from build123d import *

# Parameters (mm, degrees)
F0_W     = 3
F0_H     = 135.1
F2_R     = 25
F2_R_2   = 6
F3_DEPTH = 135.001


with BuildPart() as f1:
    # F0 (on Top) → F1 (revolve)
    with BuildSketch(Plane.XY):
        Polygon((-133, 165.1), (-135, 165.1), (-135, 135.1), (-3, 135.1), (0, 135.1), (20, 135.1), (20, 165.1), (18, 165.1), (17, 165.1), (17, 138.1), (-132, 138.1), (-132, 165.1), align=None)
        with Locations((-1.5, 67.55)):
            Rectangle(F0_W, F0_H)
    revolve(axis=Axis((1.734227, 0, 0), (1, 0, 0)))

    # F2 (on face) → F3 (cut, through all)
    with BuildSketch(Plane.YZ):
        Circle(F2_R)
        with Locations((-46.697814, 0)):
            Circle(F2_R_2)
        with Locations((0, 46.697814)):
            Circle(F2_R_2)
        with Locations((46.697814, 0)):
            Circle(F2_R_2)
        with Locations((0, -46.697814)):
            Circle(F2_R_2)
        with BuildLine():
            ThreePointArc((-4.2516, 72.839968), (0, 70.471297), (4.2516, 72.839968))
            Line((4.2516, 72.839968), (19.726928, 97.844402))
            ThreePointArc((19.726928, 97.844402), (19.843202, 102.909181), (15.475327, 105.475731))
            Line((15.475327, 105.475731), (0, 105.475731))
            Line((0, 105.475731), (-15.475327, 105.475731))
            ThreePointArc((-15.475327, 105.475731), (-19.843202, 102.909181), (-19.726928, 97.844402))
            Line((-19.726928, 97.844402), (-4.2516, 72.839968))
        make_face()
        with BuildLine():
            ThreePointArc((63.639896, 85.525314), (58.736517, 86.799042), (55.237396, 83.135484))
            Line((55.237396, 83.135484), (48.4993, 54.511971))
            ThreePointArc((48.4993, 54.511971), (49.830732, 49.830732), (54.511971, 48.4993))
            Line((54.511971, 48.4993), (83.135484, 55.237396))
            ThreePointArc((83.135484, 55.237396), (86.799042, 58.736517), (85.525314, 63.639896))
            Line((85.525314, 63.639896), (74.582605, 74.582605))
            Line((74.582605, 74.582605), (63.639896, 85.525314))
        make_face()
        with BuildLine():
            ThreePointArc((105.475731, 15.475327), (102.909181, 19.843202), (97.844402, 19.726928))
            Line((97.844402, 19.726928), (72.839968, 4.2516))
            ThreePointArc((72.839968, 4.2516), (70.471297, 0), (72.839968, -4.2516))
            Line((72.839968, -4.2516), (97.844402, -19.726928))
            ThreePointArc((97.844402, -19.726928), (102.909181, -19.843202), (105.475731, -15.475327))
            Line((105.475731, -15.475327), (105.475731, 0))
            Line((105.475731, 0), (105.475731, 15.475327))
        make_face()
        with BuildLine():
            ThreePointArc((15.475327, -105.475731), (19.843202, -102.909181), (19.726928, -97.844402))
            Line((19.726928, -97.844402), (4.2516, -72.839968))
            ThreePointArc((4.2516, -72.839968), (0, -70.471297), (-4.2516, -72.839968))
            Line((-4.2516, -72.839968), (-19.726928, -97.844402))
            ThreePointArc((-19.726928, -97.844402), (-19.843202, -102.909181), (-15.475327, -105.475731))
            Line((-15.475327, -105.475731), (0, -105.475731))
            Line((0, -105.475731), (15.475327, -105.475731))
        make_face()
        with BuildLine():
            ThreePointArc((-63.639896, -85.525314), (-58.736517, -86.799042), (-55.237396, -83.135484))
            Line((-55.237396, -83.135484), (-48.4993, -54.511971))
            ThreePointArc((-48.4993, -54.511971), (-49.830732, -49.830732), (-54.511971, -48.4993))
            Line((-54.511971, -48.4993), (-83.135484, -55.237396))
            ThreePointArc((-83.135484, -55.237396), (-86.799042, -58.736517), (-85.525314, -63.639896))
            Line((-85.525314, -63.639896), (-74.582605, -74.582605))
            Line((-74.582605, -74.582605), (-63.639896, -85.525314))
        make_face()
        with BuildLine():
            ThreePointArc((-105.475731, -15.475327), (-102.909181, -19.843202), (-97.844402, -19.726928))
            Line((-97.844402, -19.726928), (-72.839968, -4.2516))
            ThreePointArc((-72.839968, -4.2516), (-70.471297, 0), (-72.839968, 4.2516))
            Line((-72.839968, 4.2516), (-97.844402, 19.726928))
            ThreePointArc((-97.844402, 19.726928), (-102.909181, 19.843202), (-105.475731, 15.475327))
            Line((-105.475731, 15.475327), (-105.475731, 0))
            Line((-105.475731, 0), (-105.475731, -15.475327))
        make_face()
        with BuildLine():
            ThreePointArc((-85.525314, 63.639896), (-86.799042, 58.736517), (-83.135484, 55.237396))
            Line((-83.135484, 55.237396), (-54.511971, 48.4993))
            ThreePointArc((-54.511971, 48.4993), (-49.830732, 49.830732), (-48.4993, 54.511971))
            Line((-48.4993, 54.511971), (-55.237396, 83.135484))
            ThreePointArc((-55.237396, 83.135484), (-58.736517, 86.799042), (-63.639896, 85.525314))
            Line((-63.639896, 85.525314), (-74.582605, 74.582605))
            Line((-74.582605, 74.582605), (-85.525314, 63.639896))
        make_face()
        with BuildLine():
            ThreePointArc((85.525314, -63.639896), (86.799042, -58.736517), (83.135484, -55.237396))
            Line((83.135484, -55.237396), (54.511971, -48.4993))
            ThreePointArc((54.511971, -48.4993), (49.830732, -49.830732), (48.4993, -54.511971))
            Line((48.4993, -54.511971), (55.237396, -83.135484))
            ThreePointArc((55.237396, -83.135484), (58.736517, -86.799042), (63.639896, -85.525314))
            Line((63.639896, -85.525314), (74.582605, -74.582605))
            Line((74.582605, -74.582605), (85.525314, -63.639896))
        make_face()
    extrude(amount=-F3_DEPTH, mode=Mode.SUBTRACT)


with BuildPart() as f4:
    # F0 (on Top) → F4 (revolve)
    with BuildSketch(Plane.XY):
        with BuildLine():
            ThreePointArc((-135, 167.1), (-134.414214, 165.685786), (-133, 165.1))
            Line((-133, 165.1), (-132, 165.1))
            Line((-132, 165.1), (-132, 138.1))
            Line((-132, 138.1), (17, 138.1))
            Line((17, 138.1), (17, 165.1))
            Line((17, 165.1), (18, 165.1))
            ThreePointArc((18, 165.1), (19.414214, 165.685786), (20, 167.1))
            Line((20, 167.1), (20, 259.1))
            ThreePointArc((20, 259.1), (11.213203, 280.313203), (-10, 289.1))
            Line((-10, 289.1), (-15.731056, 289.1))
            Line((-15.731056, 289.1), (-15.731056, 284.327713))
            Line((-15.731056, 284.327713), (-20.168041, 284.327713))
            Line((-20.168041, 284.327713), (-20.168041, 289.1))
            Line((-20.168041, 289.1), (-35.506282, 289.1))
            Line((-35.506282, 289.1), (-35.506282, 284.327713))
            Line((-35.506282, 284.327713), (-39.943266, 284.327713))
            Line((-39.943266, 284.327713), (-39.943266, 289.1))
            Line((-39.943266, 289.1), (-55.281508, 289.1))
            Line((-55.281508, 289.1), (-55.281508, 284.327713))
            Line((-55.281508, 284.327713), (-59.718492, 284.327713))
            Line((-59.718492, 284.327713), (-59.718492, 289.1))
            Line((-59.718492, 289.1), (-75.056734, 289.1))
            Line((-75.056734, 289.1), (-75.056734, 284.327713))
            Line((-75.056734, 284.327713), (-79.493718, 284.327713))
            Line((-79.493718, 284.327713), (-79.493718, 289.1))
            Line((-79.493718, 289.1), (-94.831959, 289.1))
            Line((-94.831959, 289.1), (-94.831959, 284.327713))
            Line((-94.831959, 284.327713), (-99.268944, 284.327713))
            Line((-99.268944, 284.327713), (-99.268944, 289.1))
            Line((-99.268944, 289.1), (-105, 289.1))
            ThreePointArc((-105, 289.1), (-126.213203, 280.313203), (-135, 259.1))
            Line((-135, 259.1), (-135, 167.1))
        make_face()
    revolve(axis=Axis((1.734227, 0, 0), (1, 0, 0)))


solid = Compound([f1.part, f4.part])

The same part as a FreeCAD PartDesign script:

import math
import FreeCAD as App
import Part
import Sketcher
from FreeCAD import Vector
Q = App.Units.Quantity

doc = App.newDocument("Part")
body = doc.addObject("PartDesign::Body", "Body")

sketch1 = doc.addObject("Sketcher::SketchObject", "Sketch")
body.addObject(sketch1)
sketch1.AttachmentSupport = (doc.XY_Plane, [""])
sketch1.MapMode = "FlatFace"
sketch1.addGeometry(Part.LineSegment(Vector(-135, 165.1, 0), Vector(-135, 135.1, 0)), False)
sketch1.addGeometry(Part.LineSegment(Vector(-135, 135.1, 0), Vector(-3, 135.1, 0)), False)
sketch1.addGeometry(Part.LineSegment(Vector(-3, 135.1, 0), Vector(-3, 0, 0)), False)
sketch1.addGeometry(Part.LineSegment(Vector(-3, 0, 0), Vector(0, 0, 0)), False)
sketch1.addGeometry(Part.LineSegment(Vector(0, 0, 0), Vector(0, 135.1, 0)), False)
sketch1.addGeometry(Part.LineSegment(Vector(0, 135.1, 0), Vector(20, 135.1, 0)), False)
sketch1.addGeometry(Part.LineSegment(Vector(20, 135.1, 0), Vector(20, 165.1, 0)), False)
sketch1.addGeometry(Part.LineSegment(Vector(20, 165.1, 0), Vector(17, 165.1, 0)), False)
sketch1.addGeometry(Part.LineSegment(Vector(17, 165.1, 0), Vector(17, 138.1, 0)), False)
sketch1.addGeometry(Part.LineSegment(Vector(17, 138.1, 0), Vector(-132, 138.1, 0)), False)
sketch1.addGeometry(Part.LineSegment(Vector(-132, 138.1, 0), Vector(-132, 165.1, 0)), False)
sketch1.addGeometry(Part.LineSegment(Vector(-132, 165.1, 0), Vector(-135, 165.1, 0)), False)
sketch1.addConstraint(Sketcher.Constraint("Coincident", 0, 2, 1, 1))
sketch1.addConstraint(Sketcher.Constraint("Coincident", 1, 2, 2, 1))
sketch1.addConstraint(Sketcher.Constraint("Coincident", 2, 2, 3, 1))
sketch1.addConstraint(Sketcher.Constraint("Coincident", 3, 2, 4, 1))
sketch1.addConstraint(Sketcher.Constraint("Coincident", 4, 2, 5, 1))
sketch1.addConstraint(Sketcher.Constraint("Coincident", 5, 2, 6, 1))
sketch1.addConstraint(Sketcher.Constraint("Coincident", 6, 2, 7, 1))
sketch1.addConstraint(Sketcher.Constraint("Coincident", 7, 2, 8, 1))
sketch1.addConstraint(Sketcher.Constraint("Coincident", 8, 2, 9, 1))
sketch1.addConstraint(Sketcher.Constraint("Coincident", 9, 2, 10, 1))
sketch1.addConstraint(Sketcher.Constraint("Coincident", 10, 2, 11, 1))
sketch1.addConstraint(Sketcher.Constraint("Coincident", 11, 2, 0, 1))
sketch1.addConstraint(Sketcher.Constraint("Vertical", 0))
sketch1.addConstraint(Sketcher.Constraint("Horizontal", 1))
sketch1.addConstraint(Sketcher.Constraint("Vertical", 2))
sketch1.addConstraint(Sketcher.Constraint("Horizontal", 3))
sketch1.addConstraint(Sketcher.Constraint("Vertical", 4))
sketch1.addConstraint(Sketcher.Constraint("Horizontal", 5))
sketch1.addConstraint(Sketcher.Constraint("Vertical", 6))
sketch1.addConstraint(Sketcher.Constraint("Horizontal", 7))
sketch1.addConstraint(Sketcher.Constraint("Vertical", 8))
sketch1.addConstraint(Sketcher.Constraint("Horizontal", 9))
sketch1.addConstraint(Sketcher.Constraint("Vertical", 10))
sketch1.addConstraint(Sketcher.Constraint("Horizontal", 11))
sketch1.addConstraint(Sketcher.Constraint("Coincident", 3, 2, -1, 1))
sketch1.addConstraint(Sketcher.Constraint("Horizontal", 1, 2, 4, 2))
sketch1.addConstraint(Sketcher.Constraint("Horizontal", 7, 2, 10, 2))
sketch1.addConstraint(Sketcher.Constraint("Equal", 3, 7))
sketch1.addConstraint(Sketcher.Constraint("Equal", 7, 11))
sketch1.addConstraint(Sketcher.Constraint("DistanceX", 1, 1, 1, 2, Q("132 mm")))
sketch1.addConstraint(Sketcher.Constraint("DistanceX", 3, 1, 3, 2, Q("3 mm")))
sketch1.addConstraint(Sketcher.Constraint("DistanceX", 5, 1, 5, 2, Q("20 mm")))
sketch1.addConstraint(Sketcher.Constraint("DistanceY", 0, 2, 0, 1, Q("30 mm")))
sketch1.addConstraint(Sketcher.Constraint("DistanceY", 8, 2, 8, 1, Q("27 mm")))
sketch1.addConstraint(Sketcher.Constraint("DistanceY", 2, 2, 2, 1, Q("135.1 mm")))
revolution = doc.addObject("PartDesign::Revolution", "Revolution")
body.addObject(revolution)
revolution.Profile = sketch1
revolution.ReferenceAxis = (sketch1, ["H_Axis"])
revolution.Angle = 360

sketch2 = doc.addObject("Sketcher::SketchObject", "Sketch001")
body.addObject(sketch2)
sketch2.AttachmentSupport = (doc.YZ_Plane, [""])
sketch2.MapMode = "FlatFace"
sketch2.addGeometry(Part.Circle(Vector(0, 0, 0), Vector(0, 0, 1), 25), False)
sketch2.addGeometry(Part.Circle(Vector(-46.7, 0, 0), Vector(0, 0, 1), 6), False)
sketch2.addGeometry(Part.Circle(Vector(0, 46.7, 0), Vector(0, 0, 1), 6), False)
sketch2.addGeometry(Part.Circle(Vector(46.7, 0, 0), Vector(0, 0, 1), 6), False)
sketch2.addGeometry(Part.Circle(Vector(0, -46.7, 0), Vector(0, 0, 1), 6), False)
sketch2.addGeometry(Part.ArcOfCircle(Part.Circle(Vector(0, 75.5, 0), Vector(0, 0, 1), 5), math.radians(-148), math.radians(-32)), False)
sketch2.addGeometry(Part.LineSegment(Vector(4.3, 72.8, 0), Vector(19.7, 97.8, 0)), False)
sketch2.addGeometry(Part.ArcOfCircle(Part.Circle(Vector(15.5, 100.5, 0), Vector(0, 0, 1), 5), math.radians(-32), math.radians(90)), False)
sketch2.addGeometry(Part.LineSegment(Vector(15.5, 105.5, 0), Vector(-15.5, 105.5, 0)), False)
sketch2.addGeometry(Part.ArcOfCircle(Part.Circle(Vector(-15.5, 100.5, 0), Vector(0, 0, 1), 5), math.radians(90), math.radians(212)), False)
sketch2.addGeometry(Part.LineSegment(Vector(-19.7, 97.8, 0), Vector(-4.3, 72.8, 0)), False)
sketch2.addGeometry(Part.ArcOfCircle(Part.Circle(Vector(60.1, 82, 0), Vector(0, 0, 1), 5), math.radians(45), math.radians(167)), False)
sketch2.addGeometry(Part.LineSegment(Vector(55.2, 83.1, 0), Vector(48.5, 54.5, 0)), False)
sketch2.addGeometry(Part.ArcOfCircle(Part.Circle(Vector(53.4, 53.4, 0), Vector(0, 0, 1), 5), math.radians(167), math.radians(283)), False)
sketch2.addGeometry(Part.LineSegment(Vector(54.5, 48.5, 0), Vector(83.1, 55.2, 0)), False)
sketch2.addGeometry(Part.ArcOfCircle(Part.Circle(Vector(82, 60.1, 0), Vector(0, 0, 1), 5), math.radians(-77), math.radians(45)), False)
sketch2.addGeometry(Part.LineSegment(Vector(85.5, 63.6, 0), Vector(63.6, 85.5, 0)), False)
sketch2.addGeometry(Part.ArcOfCircle(Part.Circle(Vector(100.5, 15.5, 0), Vector(0, 0, 1), 5), math.radians(0), math.radians(122)), False)
sketch2.addGeometry(Part.LineSegment(Vector(97.8, 19.7, 0), Vector(72.8, 4.3, 0)), False)
sketch2.addGeometry(Part.ArcOfCircle(Part.Circle(Vector(75.5, 0, 0), Vector(0, 0, 1), 5), math.radians(122), math.radians(238)), False)
sketch2.addGeometry(Part.LineSegment(Vector(72.8, -4.3, 0), Vector(97.8, -19.7, 0)), False)
sketch2.addGeometry(Part.ArcOfCircle(Part.Circle(Vector(100.5, -15.5, 0), Vector(0, 0, 1), 5), math.radians(-122), math.radians(0)), False)
sketch2.addGeometry(Part.LineSegment(Vector(105.5, -15.5, 0), Vector(105.5, 15.5, 0)), False)
sketch2.addGeometry(Part.ArcOfCircle(Part.Circle(Vector(15.5, -100.5, 0), Vector(0, 0, 1), 5), math.radians(-90), math.radians(32)), False)
sketch2.addGeometry(Part.LineSegment(Vector(19.7, -97.8, 0), Vector(4.3, -72.8, 0)), False)
sketch2.addGeometry(Part.ArcOfCircle(Part.Circle(Vector(0, -75.5, 0), Vector(0, 0, 1), 5), math.radians(32), math.radians(148)), False)
sketch2.addGeometry(Part.LineSegment(Vector(-4.3, -72.8, 0), Vector(-19.7, -97.8, 0)), False)
sketch2.addGeometry(Part.ArcOfCircle(Part.Circle(Vector(-15.5, -100.5, 0), Vector(0, 0, 1), 5), math.radians(148), math.radians(270)), False)
sketch2.addGeometry(Part.LineSegment(Vector(-15.5, -105.5, 0), Vector(15.5, -105.5, 0)), False)
sketch2.addGeometry(Part.ArcOfCircle(Part.Circle(Vector(-60.1, -82, 0), Vector(0, 0, 1), 5), math.radians(-135), math.radians(-13)), False)
sketch2.addGeometry(Part.LineSegment(Vector(-55.2, -83.1, 0), Vector(-48.5, -54.5, 0)), False)
sketch2.addGeometry(Part.ArcOfCircle(Part.Circle(Vector(-53.4, -53.4, 0), Vector(0, 0, 1), 5), math.radians(-13), math.radians(103)), False)
sketch2.addGeometry(Part.LineSegment(Vector(-54.5, -48.5, 0), Vector(-83.1, -55.2, 0)), False)
sketch2.addGeometry(Part.ArcOfCircle(Part.Circle(Vector(-82, -60.1, 0), Vector(0, 0, 1), 5), math.radians(103), math.radians(225)), False)
sketch2.addGeometry(Part.LineSegment(Vector(-85.5, -63.6, 0), Vector(-63.6, -85.5, 0)), False)
sketch2.addGeometry(Part.ArcOfCircle(Part.Circle(Vector(-100.5, -15.5, 0), Vector(0, 0, 1), 5), math.radians(180), math.radians(302)), False)
sketch2.addGeometry(Part.LineSegment(Vector(-97.8, -19.7, 0), Vector(-72.8, -4.3, 0)), False)
sketch2.addGeometry(Part.ArcOfCircle(Part.Circle(Vector(-75.5, 0, 0), Vector(0, 0, 1), 5), math.radians(-58), math.radians(58)), False)
sketch2.addGeometry(Part.LineSegment(Vector(-72.8, 4.3, 0), Vector(-97.8, 19.7, 0)), False)
sketch2.addGeometry(Part.ArcOfCircle(Part.Circle(Vector(-100.5, 15.5, 0), Vector(0, 0, 1), 5), math.radians(58), math.radians(180)), False)
sketch2.addGeometry(Part.LineSegment(Vector(-105.5, 15.5, 0), Vector(-105.5, -15.5, 0)), False)
sketch2.addGeometry(Part.ArcOfCircle(Part.Circle(Vector(-82, 60.1, 0), Vector(0, 0, 1), 5), math.radians(135), math.radians(257)), False)
sketch2.addGeometry(Part.LineSegment(Vector(-83.1, 55.2, 0), Vector(-54.5, 48.5, 0)), False)
sketch2.addGeometry(Part.ArcOfCircle(Part.Circle(Vector(-53.4, 53.4, 0), Vector(0, 0, 1), 5), math.radians(-103), math.radians(13)), False)
sketch2.addGeometry(Part.LineSegment(Vector(-48.5, 54.5, 0), Vector(-55.2, 83.1, 0)), False)
sketch2.addGeometry(Part.ArcOfCircle(Part.Circle(Vector(-60.1, 82, 0), Vector(0, 0, 1), 5), math.radians(13), math.radians(135)), False)
sketch2.addGeometry(Part.LineSegment(Vector(-63.6, 85.5, 0), Vector(-85.5, 63.6, 0)), False)
sketch2.addGeometry(Part.ArcOfCircle(Part.Circle(Vector(82, -60.1, 0), Vector(0, 0, 1), 5), math.radians(-45), math.radians(77)), False)
sketch2.addGeometry(Part.LineSegment(Vector(83.1, -55.2, 0), Vector(54.5, -48.5, 0)), False)
sketch2.addGeometry(Part.ArcOfCircle(Part.Circle(Vector(53.4, -53.4, 0), Vector(0, 0, 1), 5), math.radians(77), math.radians(193)), False)
sketch2.addGeometry(Part.LineSegment(Vector(48.5, -54.5, 0), Vector(55.2, -83.1, 0)), False)
sketch2.addGeometry(Part.ArcOfCircle(Part.Circle(Vector(60.1, -82, 0), Vector(0, 0, 1), 5), math.radians(-167), math.radians(-45)), False)
sketch2.addGeometry(Part.LineSegment(Vector(63.6, -85.5, 0), Vector(85.5, -63.6, 0)), False)
sketch2.addConstraint(Sketcher.Constraint("Tangent", 5, 2, 6, 1))
sketch2.addConstraint(Sketcher.Constraint("Tangent", 6, 2, 7, 1))
sketch2.addConstraint(Sketcher.Constraint("Tangent", 7, 2, 8, 1))
sketch2.addConstraint(Sketcher.Constraint("Tangent", 8, 2, 9, 1))
sketch2.addConstraint(Sketcher.Constraint("Tangent", 9, 2, 10, 1))
sketch2.addConstraint(Sketcher.Constraint("Tangent", 10, 2, 5, 1))
sketch2.addConstraint(Sketcher.Constraint("Tangent", 11, 2, 12, 1))
sketch2.addConstraint(Sketcher.Constraint("Tangent", 12, 2, 13, 1))
sketch2.addConstraint(Sketcher.Constraint("Tangent", 13, 2, 14, 1))
sketch2.addConstraint(Sketcher.Constraint("Tangent", 14, 2, 15, 1))
sketch2.addConstraint(Sketcher.Constraint("Tangent", 15, 2, 16, 1))
sketch2.addConstraint(Sketcher.Constraint("Tangent", 16, 2, 11, 1))
sketch2.addConstraint(Sketcher.Constraint("Tangent", 17, 2, 18, 1))
sketch2.addConstraint(Sketcher.Constraint("Tangent", 18, 2, 19, 1))
sketch2.addConstraint(Sketcher.Constraint("Tangent", 19, 2, 20, 1))
sketch2.addConstraint(Sketcher.Constraint("Tangent", 20, 2, 21, 1))
sketch2.addConstraint(Sketcher.Constraint("Tangent", 21, 2, 22, 1))
sketch2.addConstraint(Sketcher.Constraint("Tangent", 22, 2, 17, 1))
sketch2.addConstraint(Sketcher.Constraint("Tangent", 23, 2, 24, 1))
sketch2.addConstraint(Sketcher.Constraint("Tangent", 24, 2, 25, 1))
sketch2.addConstraint(Sketcher.Constraint("Tangent", 25, 2, 26, 1))
sketch2.addConstraint(Sketcher.Constraint("Tangent", 26, 2, 27, 1))
sketch2.addConstraint(Sketcher.Constraint("Tangent", 27, 2, 28, 1))
sketch2.addConstraint(Sketcher.Constraint("Tangent", 28, 2, 23, 1))
sketch2.addConstraint(Sketcher.Constraint("Tangent", 29, 2, 30, 1))
sketch2.addConstraint(Sketcher.Constraint("Tangent", 30, 2, 31, 1))
sketch2.addConstraint(Sketcher.Constraint("Tangent", 31, 2, 32, 1))
sketch2.addConstraint(Sketcher.Constraint("Tangent", 32, 2, 33, 1))
sketch2.addConstraint(Sketcher.Constraint("Tangent", 33, 2, 34, 1))
sketch2.addConstraint(Sketcher.Constraint("Tangent", 34, 2, 29, 1))
sketch2.addConstraint(Sketcher.Constraint("Tangent", 35, 2, 36, 1))
sketch2.addConstraint(Sketcher.Constraint("Tangent", 36, 2, 37, 1))
sketch2.addConstraint(Sketcher.Constraint("Tangent", 37, 2, 38, 1))
sketch2.addConstraint(Sketcher.Constraint("Tangent", 38, 2, 39, 1))
sketch2.addConstraint(Sketcher.Constraint("Tangent", 39, 2, 40, 1))
sketch2.addConstraint(Sketcher.Constraint("Tangent", 40, 2, 35, 1))
sketch2.addConstraint(Sketcher.Constraint("Tangent", 41, 2, 42, 1))
sketch2.addConstraint(Sketcher.Constraint("Tangent", 42, 2, 43, 1))
sketch2.addConstraint(Sketcher.Constraint("Tangent", 43, 2, 44, 1))
sketch2.addConstraint(Sketcher.Constraint("Tangent", 44, 2, 45, 1))
sketch2.addConstraint(Sketcher.Constraint("Tangent", 45, 2, 46, 1))
sketch2.addConstraint(Sketcher.Constraint("Tangent", 46, 2, 41, 1))
sketch2.addConstraint(Sketcher.Constraint("Tangent", 47, 2, 48, 1))
sketch2.addConstraint(Sketcher.Constraint("Tangent", 48, 2, 49, 1))
sketch2.addConstraint(Sketcher.Constraint("Tangent", 49, 2, 50, 1))
sketch2.addConstraint(Sketcher.Constraint("Tangent", 50, 2, 51, 1))
sketch2.addConstraint(Sketcher.Constraint("Tangent", 51, 2, 52, 1))
sketch2.addConstraint(Sketcher.Constraint("Tangent", 52, 2, 47, 1))
sketch2.addConstraint(Sketcher.Constraint("Horizontal", 8))
sketch2.addConstraint(Sketcher.Constraint("Vertical", 22))
sketch2.addConstraint(Sketcher.Constraint("Horizontal", 28))
sketch2.addConstraint(Sketcher.Constraint("Vertical", 40))
sketch2.addConstraint(Sketcher.Constraint("Coincident", 0, 3, -1, 1))
sketch2.addConstraint(Sketcher.Constraint("Equal", 1, 2))
sketch2.addConstraint(Sketcher.Constraint("Equal", 2, 3))
sketch2.addConstraint(Sketcher.Constraint("Equal", 3, 4))
sketch2.addConstraint(Sketcher.Constraint("Equal", 5, 7))
sketch2.addConstraint(Sketcher.Constraint("Equal", 7, 9))
sketch2.addConstraint(Sketcher.Constraint("Equal", 9, 11))
sketch2.addConstraint(Sketcher.Constraint("Equal", 11, 13))
sketch2.addConstraint(Sketcher.Constraint("Equal", 13, 15))
sketch2.addConstraint(Sketcher.Constraint("Equal", 15, 17))
sketch2.addConstraint(Sketcher.Constraint("Equal", 17, 19))
sketch2.addConstraint(Sketcher.Constraint("Equal", 19, 21))
sketch2.addConstraint(Sketcher.Constraint("Equal", 21, 23))
sketch2.addConstraint(Sketcher.Constraint("Equal", 23, 25))
sketch2.addConstraint(Sketcher.Constraint("Equal", 25, 27))
sketch2.addConstraint(Sketcher.Constraint("Equal", 27, 29))
sketch2.addConstraint(Sketcher.Constraint("Equal", 29, 31))
sketch2.addConstraint(Sketcher.Constraint("Equal", 31, 33))
sketch2.addConstraint(Sketcher.Constraint("Equal", 33, 35))
sketch2.addConstraint(Sketcher.Constraint("Equal", 35, 37))
sketch2.addConstraint(Sketcher.Constraint("Equal", 37, 39))
sketch2.addConstraint(Sketcher.Constraint("Equal", 39, 41))
sketch2.addConstraint(Sketcher.Constraint("Equal", 41, 43))
sketch2.addConstraint(Sketcher.Constraint("Equal", 43, 45))
sketch2.addConstraint(Sketcher.Constraint("Equal", 45, 47))
sketch2.addConstraint(Sketcher.Constraint("Equal", 47, 49))
sketch2.addConstraint(Sketcher.Constraint("Equal", 49, 51))
sketch2.addConstraint(Sketcher.Constraint("Symmetric", 1, 3, 3, 3, -1, 1))
sketch2.addConstraint(Sketcher.Constraint("Symmetric", 2, 3, 4, 3, -1, 1))
sketch2.addConstraint(Sketcher.Constraint("Symmetric", 9, 3, 23, 3, -1, 1))
sketch2.addConstraint(Sketcher.Constraint("Symmetric", 5, 3, 25, 3, -1, 1))
sketch2.addConstraint(Sketcher.Constraint("Symmetric", 11, 3, 29, 3, -1, 1))
sketch2.addConstraint(Sketcher.Constraint("Symmetric", 13, 3, 31, 3, -1, 1))
sketch2.addConstraint(Sketcher.Constraint("Symmetric", 15, 3, 33, 3, -1, 1))
sketch2.addConstraint(Sketcher.Constraint("Symmetric", 17, 3, 35, 3, -1, 1))
sketch2.addConstraint(Sketcher.Constraint("Symmetric", 19, 3, 37, 3, -1, 1))
sketch2.addConstraint(Sketcher.Constraint("Symmetric", 41, 3, 47, 3, -1, 1))
sketch2.addConstraint(Sketcher.Constraint("Symmetric", 43, 3, 49, 3, -1, 1))
sketch2.addConstraint(Sketcher.Constraint("Symmetric", 45, 3, 51, 3, -1, 1))
sketch2.addConstraint(Sketcher.Constraint("Symmetric", 15, 3, 41, 3, -2))
sketch2.addConstraint(Sketcher.Constraint("Symmetric", 13, 3, 43, 3, -2))
sketch2.addConstraint(Sketcher.Constraint("Symmetric", 11, 3, 45, 3, -2))
sketch2.addConstraint(Sketcher.Constraint("Symmetric", 6, 2, 9, 2, -2))
sketch2.addConstraint(Sketcher.Constraint("Symmetric", 20, 2, 35, 2, -2))
sketch2.addConstraint(Sketcher.Constraint("PointOnObject", 1, 3, -1))
sketch2.addConstraint(Sketcher.Constraint("PointOnObject", 2, 3, -2))
sketch2.addConstraint(Sketcher.Constraint("Perpendicular", 10, 18))
sketch2.addConstraint(Sketcher.Constraint("Perpendicular", 20, 26))
sketch2.addConstraint(Sketcher.Constraint("Perpendicular", 26, 38))
sketch2.addConstraint(Sketcher.Constraint("Perpendicular", 30, 42))
sketch2.addConstraint(Sketcher.Constraint("Perpendicular", 34, 46))
sketch2.addConstraint(Sketcher.Constraint("Equal", 28, 22))
sketch2.addConstraint(Sketcher.Constraint("Equal", 10, 12))
sketch2.addConstraint(Sketcher.Constraint("Diameter", 0, Q("50 mm")))
sketch2.addConstraint(Sketcher.Constraint("Diameter", 1, Q("12 mm")))
sketch2.addConstraint(Sketcher.Constraint("Radius", 5, Q("4.999999 mm")))
sketch2.addConstraint(Sketcher.Constraint("DistanceX", -1, 1, 5, 2, Q("4.2516 mm")))
sketch2.addConstraint(Sketcher.Constraint("DistanceX", -1, 1, 12, 2, Q("48.4993 mm")))
sketch2.addConstraint(Sketcher.Constraint("DistanceY", -1, 1, 13, 2, Q("48.4993 mm")))
sketch2.addConstraint(Sketcher.Constraint("Distance", 6, Q("29.405909 mm")))
sketch2.addConstraint(Sketcher.Constraint("DistanceY", -1, 1, 7, 3, Q("100.475732 mm")))
sketch2.addConstraint(Sketcher.Constraint("DistanceY", -1, 1, 11, 3, Q("81.989781 mm")))
sketch2.addConstraint(Sketcher.Constraint("DistanceX", -1, 1, 17, 3, Q("100.475732 mm")))
sketch2.addConstraint(Sketcher.Constraint("DistanceX", 1, 3, -1, 1, Q("46.697814 mm")))
sketch2.addConstraint(Sketcher.Constraint("DistanceY", -1, 1, 2, 3, Q("46.697814 mm")))
pocket1 = doc.addObject("PartDesign::Pocket", "Pocket")
body.addObject(pocket1)
pocket1.Profile = sketch2
pocket1.Type = "ThroughAll"
body2 = doc.addObject("PartDesign::Body", "Body001")

sketch3 = doc.addObject("Sketcher::SketchObject", "Sketch002")
body2.addObject(sketch3)
sketch3.AttachmentSupport = (doc.getObject("XY_Plane001"), [""])
sketch3.MapMode = "FlatFace"
sketch3.addGeometry(Part.ArcOfCircle(Part.Circle(Vector(-133, 167.1, 0), Vector(0, 0, 1), 2), math.radians(180), math.radians(270)), False)
sketch3.addGeometry(Part.LineSegment(Vector(-133, 165.1, 0), Vector(-132, 165.1, 0)), False)
sketch3.addGeometry(Part.LineSegment(Vector(-132, 165.1, 0), Vector(-132, 138.1, 0)), False)
sketch3.addGeometry(Part.LineSegment(Vector(-132, 138.1, 0), Vector(17, 138.1, 0)), False)
sketch3.addGeometry(Part.LineSegment(Vector(17, 138.1, 0), Vector(17, 165.1, 0)), False)
sketch3.addGeometry(Part.LineSegment(Vector(17, 165.1, 0), Vector(18, 165.1, 0)), False)
sketch3.addGeometry(Part.ArcOfCircle(Part.Circle(Vector(18, 167.1, 0), Vector(0, 0, 1), 2), math.radians(-90), math.radians(0)), False)
sketch3.addGeometry(Part.LineSegment(Vector(20, 167.1, 0), Vector(20, 259.1, 0)), False)
sketch3.addGeometry(Part.ArcOfCircle(Part.Circle(Vector(-10, 259.1, 0), Vector(0, 0, 1), 30), math.radians(0), math.radians(90)), False)
sketch3.addGeometry(Part.LineSegment(Vector(-10, 289.1, 0), Vector(-15.7, 289.1, 0)), False)
sketch3.addGeometry(Part.LineSegment(Vector(-15.7, 289.1, 0), Vector(-15.7, 284.3, 0)), False)
sketch3.addGeometry(Part.LineSegment(Vector(-15.7, 284.3, 0), Vector(-20.2, 284.3, 0)), False)
sketch3.addGeometry(Part.LineSegment(Vector(-20.2, 284.3, 0), Vector(-20.2, 289.1, 0)), False)
sketch3.addGeometry(Part.LineSegment(Vector(-20.2, 289.1, 0), Vector(-35.5, 289.1, 0)), False)
sketch3.addGeometry(Part.LineSegment(Vector(-35.5, 289.1, 0), Vector(-35.5, 284.3, 0)), False)
sketch3.addGeometry(Part.LineSegment(Vector(-35.5, 284.3, 0), Vector(-39.9, 284.3, 0)), False)
sketch3.addGeometry(Part.LineSegment(Vector(-39.9, 284.3, 0), Vector(-39.9, 289.1, 0)), False)
sketch3.addGeometry(Part.LineSegment(Vector(-39.9, 289.1, 0), Vector(-55.3, 289.1, 0)), False)
sketch3.addGeometry(Part.LineSegment(Vector(-55.3, 289.1, 0), Vector(-55.3, 284.3, 0)), False)
sketch3.addGeometry(Part.LineSegment(Vector(-55.3, 284.3, 0), Vector(-59.7, 284.3, 0)), False)
sketch3.addGeometry(Part.LineSegment(Vector(-59.7, 284.3, 0), Vector(-59.7, 289.1, 0)), False)
sketch3.addGeometry(Part.LineSegment(Vector(-59.7, 289.1, 0), Vector(-75.1, 289.1, 0)), False)
sketch3.addGeometry(Part.LineSegment(Vector(-75.1, 289.1, 0), Vector(-75.1, 284.3, 0)), False)
sketch3.addGeometry(Part.LineSegment(Vector(-75.1, 284.3, 0), Vector(-79.5, 284.3, 0)), False)
sketch3.addGeometry(Part.LineSegment(Vector(-79.5, 284.3, 0), Vector(-79.5, 289.1, 0)), False)
sketch3.addGeometry(Part.LineSegment(Vector(-79.5, 289.1, 0), Vector(-94.8, 289.1, 0)), False)
sketch3.addGeometry(Part.LineSegment(Vector(-94.8, 289.1, 0), Vector(-94.8, 284.3, 0)), False)
sketch3.addGeometry(Part.LineSegment(Vector(-94.8, 284.3, 0), Vector(-99.3, 284.3, 0)), False)
sketch3.addGeometry(Part.LineSegment(Vector(-99.3, 284.3, 0), Vector(-99.3, 289.1, 0)), False)
sketch3.addGeometry(Part.LineSegment(Vector(-99.3, 289.1, 0), Vector(-105, 289.1, 0)), False)
sketch3.addGeometry(Part.ArcOfCircle(Part.Circle(Vector(-105, 259.1, 0), Vector(0, 0, 1), 30), math.radians(90), math.radians(180)), False)
sketch3.addGeometry(Part.LineSegment(Vector(-135, 259.1, 0), Vector(-135, 167.1, 0)), False)
sketch3.addConstraint(Sketcher.Constraint("Tangent", 0, 2, 1, 1))
sketch3.addConstraint(Sketcher.Constraint("Coincident", 1, 2, 2, 1))
sketch3.addConstraint(Sketcher.Constraint("Coincident", 2, 2, 3, 1))
sketch3.addConstraint(Sketcher.Constraint("Coincident", 3, 2, 4, 1))
sketch3.addConstraint(Sketcher.Constraint("Coincident", 4, 2, 5, 1))
sketch3.addConstraint(Sketcher.Constraint("Tangent", 5, 2, 6, 1))
sketch3.addConstraint(Sketcher.Constraint("Tangent", 6, 2, 7, 1))
sketch3.addConstraint(Sketcher.Constraint("Tangent", 7, 2, 8, 1))
sketch3.addConstraint(Sketcher.Constraint("Tangent", 8, 2, 9, 1))
sketch3.addConstraint(Sketcher.Constraint("Coincident", 9, 2, 10, 1))
sketch3.addConstraint(Sketcher.Constraint("Coincident", 10, 2, 11, 1))
sketch3.addConstraint(Sketcher.Constraint("Coincident", 11, 2, 12, 1))
sketch3.addConstraint(Sketcher.Constraint("Coincident", 12, 2, 13, 1))
sketch3.addConstraint(Sketcher.Constraint("Coincident", 13, 2, 14, 1))
sketch3.addConstraint(Sketcher.Constraint("Coincident", 14, 2, 15, 1))
sketch3.addConstraint(Sketcher.Constraint("Coincident", 15, 2, 16, 1))
sketch3.addConstraint(Sketcher.Constraint("Coincident", 16, 2, 17, 1))
sketch3.addConstraint(Sketcher.Constraint("Coincident", 17, 2, 18, 1))
sketch3.addConstraint(Sketcher.Constraint("Coincident", 18, 2, 19, 1))
sketch3.addConstraint(Sketcher.Constraint("Coincident", 19, 2, 20, 1))
sketch3.addConstraint(Sketcher.Constraint("Coincident", 20, 2, 21, 1))
sketch3.addConstraint(Sketcher.Constraint("Coincident", 21, 2, 22, 1))
sketch3.addConstraint(Sketcher.Constraint("Coincident", 22, 2, 23, 1))
sketch3.addConstraint(Sketcher.Constraint("Coincident", 23, 2, 24, 1))
sketch3.addConstraint(Sketcher.Constraint("Coincident", 24, 2, 25, 1))
sketch3.addConstraint(Sketcher.Constraint("Coincident", 25, 2, 26, 1))
sketch3.addConstraint(Sketcher.Constraint("Coincident", 26, 2, 27, 1))
sketch3.addConstraint(Sketcher.Constraint("Coincident", 27, 2, 28, 1))
sketch3.addConstraint(Sketcher.Constraint("Coincident", 28, 2, 29, 1))
sketch3.addConstraint(Sketcher.Constraint("Tangent", 29, 2, 30, 1))
sketch3.addConstraint(Sketcher.Constraint("Tangent", 30, 2, 31, 1))
sketch3.addConstraint(Sketcher.Constraint("Tangent", 31, 2, 0, 1))
sketch3.addConstraint(Sketcher.Constraint("Horizontal", 1))
sketch3.addConstraint(Sketcher.Constraint("Vertical", 2))
sketch3.addConstraint(Sketcher.Constraint("Horizontal", 3))
sketch3.addConstraint(Sketcher.Constraint("Vertical", 4))
sketch3.addConstraint(Sketcher.Constraint("Horizontal", 5))
sketch3.addConstraint(Sketcher.Constraint("Vertical", 7))
sketch3.addConstraint(Sketcher.Constraint("Horizontal", 9))
sketch3.addConstraint(Sketcher.Constraint("Vertical", 10))
sketch3.addConstraint(Sketcher.Constraint("Horizontal", 11))
sketch3.addConstraint(Sketcher.Constraint("Vertical", 12))
sketch3.addConstraint(Sketcher.Constraint("Horizontal", 13))
sketch3.addConstraint(Sketcher.Constraint("Vertical", 14))
sketch3.addConstraint(Sketcher.Constraint("Horizontal", 15))
sketch3.addConstraint(Sketcher.Constraint("Vertical", 16))
sketch3.addConstraint(Sketcher.Constraint("Horizontal", 17))
sketch3.addConstraint(Sketcher.Constraint("Vertical", 18))
sketch3.addConstraint(Sketcher.Constraint("Horizontal", 19))
sketch3.addConstraint(Sketcher.Constraint("Vertical", 20))
sketch3.addConstraint(Sketcher.Constraint("Horizontal", 21))
sketch3.addConstraint(Sketcher.Constraint("Vertical", 22))
sketch3.addConstraint(Sketcher.Constraint("Horizontal", 23))
sketch3.addConstraint(Sketcher.Constraint("Vertical", 24))
sketch3.addConstraint(Sketcher.Constraint("Horizontal", 25))
sketch3.addConstraint(Sketcher.Constraint("Vertical", 26))
sketch3.addConstraint(Sketcher.Constraint("Horizontal", 27))
sketch3.addConstraint(Sketcher.Constraint("Vertical", 28))
sketch3.addConstraint(Sketcher.Constraint("Horizontal", 29))
sketch3.addConstraint(Sketcher.Constraint("Vertical", 31))
sketch3.addConstraint(Sketcher.Constraint("Equal", 0, 6))
sketch3.addConstraint(Sketcher.Constraint("Equal", 8, 30))
sketch3.addConstraint(Sketcher.Constraint("Horizontal", 0, 3, 6, 3))
sketch3.addConstraint(Sketcher.Constraint("Horizontal", 8, 3, 30, 3))
sketch3.addConstraint(Sketcher.Constraint("Horizontal", 9, 2, 12, 2))
sketch3.addConstraint(Sketcher.Constraint("Horizontal", 11, 2, 14, 2))
sketch3.addConstraint(Sketcher.Constraint("Horizontal", 13, 2, 16, 2))
sketch3.addConstraint(Sketcher.Constraint("Horizontal", 15, 2, 18, 2))
sketch3.addConstraint(Sketcher.Constraint("Horizontal", 17, 2, 20, 2))
sketch3.addConstraint(Sketcher.Constraint("Horizontal", 19, 2, 22, 2))
sketch3.addConstraint(Sketcher.Constraint("Horizontal", 21, 2, 24, 2))
sketch3.addConstraint(Sketcher.Constraint("Horizontal", 23, 2, 26, 2))
sketch3.addConstraint(Sketcher.Constraint("Equal", 1, 5))
sketch3.addConstraint(Sketcher.Constraint("Equal", 11, 15))
sketch3.addConstraint(Sketcher.Constraint("Equal", 13, 17))
sketch3.addConstraint(Sketcher.Constraint("Equal", 15, 19))
sketch3.addConstraint(Sketcher.Constraint("Equal", 17, 21))
sketch3.addConstraint(Sketcher.Constraint("Equal", 19, 23))
sketch3.addConstraint(Sketcher.Constraint("Equal", 21, 25))
sketch3.addConstraint(Sketcher.Constraint("Equal", 23, 27))
sketch3.addConstraint(Sketcher.Constraint("Equal", 9, 29))
sketch3.addConstraint(Sketcher.Constraint("Radius", 0, Q("1.999999 mm")))
sketch3.addConstraint(Sketcher.Constraint("Radius", 8, Q("30.000001 mm")))
sketch3.addConstraint(Sketcher.Constraint("DistanceX", 1, 1, 1, 2, Q("1 mm")))
sketch3.addConstraint(Sketcher.Constraint("DistanceX", 3, 1, 3, 2, Q("149 mm")))
sketch3.addConstraint(Sketcher.Constraint("DistanceY", 2, 2, 2, 1, Q("27 mm")))
sketch3.addConstraint(Sketcher.Constraint("DistanceY", 7, 1, 7, 2, Q("92 mm")))
sketch3.addConstraint(Sketcher.Constraint("DistanceX", 0, 3, -1, 1, Q("133.000001 mm")))
sketch3.addConstraint(Sketcher.Constraint("DistanceY", -1, 1, 0, 3, Q("167.099999 mm")))
sketch3.addConstraint(Sketcher.Constraint("DistanceX", 13, 2, 13, 1, Q("15.338241 mm")))
sketch3.addConstraint(Sketcher.Constraint("DistanceX", 9, 2, 9, 1, Q("5.731056 mm")))
sketch3.addConstraint(Sketcher.Constraint("DistanceY", 10, 2, 10, 1, Q("4.772287 mm")))
revolution2 = doc.addObject("PartDesign::Revolution", "Revolution001")
body2.addObject(revolution2)
revolution2.Profile = sketch3
revolution2.ReferenceAxis = (sketch3, ["H_Axis"])
revolution2.Angle = 360

doc.recompute()
